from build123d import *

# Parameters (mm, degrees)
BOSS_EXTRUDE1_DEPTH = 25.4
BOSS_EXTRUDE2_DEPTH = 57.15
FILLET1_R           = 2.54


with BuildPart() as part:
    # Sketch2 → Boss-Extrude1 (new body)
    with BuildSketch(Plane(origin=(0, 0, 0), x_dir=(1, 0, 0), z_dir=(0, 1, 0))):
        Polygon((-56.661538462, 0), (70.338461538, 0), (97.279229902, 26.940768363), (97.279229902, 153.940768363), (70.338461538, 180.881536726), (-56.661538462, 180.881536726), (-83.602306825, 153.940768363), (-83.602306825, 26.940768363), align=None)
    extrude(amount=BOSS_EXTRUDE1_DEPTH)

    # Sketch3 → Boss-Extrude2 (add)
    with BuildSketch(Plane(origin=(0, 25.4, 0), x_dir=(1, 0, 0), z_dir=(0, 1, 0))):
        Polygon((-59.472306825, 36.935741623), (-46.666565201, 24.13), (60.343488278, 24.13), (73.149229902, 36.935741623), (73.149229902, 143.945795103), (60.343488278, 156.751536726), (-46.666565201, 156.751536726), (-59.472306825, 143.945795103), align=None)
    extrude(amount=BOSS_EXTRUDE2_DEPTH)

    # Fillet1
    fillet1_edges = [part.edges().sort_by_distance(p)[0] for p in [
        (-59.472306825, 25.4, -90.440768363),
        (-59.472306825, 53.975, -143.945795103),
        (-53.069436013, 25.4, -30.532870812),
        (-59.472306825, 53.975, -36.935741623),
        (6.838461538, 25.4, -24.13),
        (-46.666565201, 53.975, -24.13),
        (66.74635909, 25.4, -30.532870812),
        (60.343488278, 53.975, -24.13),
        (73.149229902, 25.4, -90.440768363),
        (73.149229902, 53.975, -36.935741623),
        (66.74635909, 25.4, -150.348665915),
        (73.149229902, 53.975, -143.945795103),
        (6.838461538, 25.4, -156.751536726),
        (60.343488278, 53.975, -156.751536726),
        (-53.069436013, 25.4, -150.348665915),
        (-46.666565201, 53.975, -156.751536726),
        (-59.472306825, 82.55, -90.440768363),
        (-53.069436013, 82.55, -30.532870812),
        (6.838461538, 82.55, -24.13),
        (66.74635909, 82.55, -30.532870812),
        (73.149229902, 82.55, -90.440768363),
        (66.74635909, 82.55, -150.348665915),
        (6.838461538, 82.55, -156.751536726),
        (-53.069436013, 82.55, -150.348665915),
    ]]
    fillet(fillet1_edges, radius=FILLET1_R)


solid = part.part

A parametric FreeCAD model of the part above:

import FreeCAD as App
import Part
import Sketcher

V = App.Vector
Q = App.Units.Quantity


def edges_at(feature, points):
    """Names of the edges that pass closest to the given points."""
    edges = feature.Shape.Edges
    near = lambda p: min(range(len(edges)), key=lambda i: edges[i].distToShape(Part.Vertex(*p))[0])
    return sorted({f"Edge{near(p) + 1}" for p in points})


def add_polygon(sketch, points):
    """Adds a closed chain of lines whose ends are joined by coincident constraints."""
    first, n = sketch.GeometryCount, len(points)
    for a, b in zip(points, points[1:] + points[:1]):
        sketch.addGeometry(Part.LineSegment(App.Vector(*a, 0), App.Vector(*b, 0)), False)
    for i in range(n):
        sketch.addConstraint(Sketcher.Constraint("Coincident", first + i, 2, first + (i + 1) % n, 1))

doc = App.newDocument("Part")
body = doc.addObject("PartDesign::Body", "Body")

sketch1 = body.newObject("Sketcher::SketchObject", "Sketch")
sketch1.AttachmentSupport = (doc.getObject("XZ_Plane"), [""])
sketch1.MapMode = "FlatFace"
add_polygon(sketch1, [(-56.661538, 0), (70.338462, 0), (97.27923, -26.940768), (97.27923, -153.940768), (70.338462, -180.881537), (-56.661538, -180.881537), (-83.602307, -153.940768), (-83.602307, -26.940768)])
sketch1.addConstraint([
    Sketcher.Constraint("Horizontal", 0),
    Sketcher.Constraint("Vertical", 2),
    Sketcher.Constraint("Horizontal", 4),
    Sketcher.Constraint("Vertical", 6),
    Sketcher.Constraint("PointOnObject", 0, 2, -1),
    Sketcher.Constraint("Perpendicular", 1, 3),
    Sketcher.Constraint("Perpendicular", 3, 5),
    Sketcher.Constraint("Perpendicular", 5, 7),
    Sketcher.Constraint("Horizontal", 2, 2, 5, 2),
    Sketcher.Constraint("Horizontal", 1, 2, 6, 2),
    Sketcher.Constraint("Vertical", 0, 2, 3, 2),
    Sketcher.Constraint("Vertical", 4, 2, 7, 2),
    Sketcher.Constraint("Equal", 4, 2),
    Sketcher.Constraint("DistanceX", 0, 1, 0, 2, Q("5 in")),
    Sketcher.Constraint("Distance", 1, Q("1.5 in")),
    Sketcher.Constraint("DistanceX", -1, 1, 0, 2, Q("70.338462 mm")),
])
pad1 = body.newObject("PartDesign::Pad", "Pad")
pad1.Profile = sketch1
pad1.Length = Q("1 in")
pad1.Reversed = True

sketch2 = body.newObject("Sketcher::SketchObject", "Sketch001")
sketch2.AttachmentSupport = (doc.getObject("XZ_Plane"), [""])
sketch2.MapMode = "FlatFace"
sketch2.AttachmentOffset = App.Placement(V(0, 0, -1 * 25.4), App.Rotation())
add_polygon(sketch2, [(-59.472307, -36.935742), (-46.666565, -24.13), (60.343488, -24.13), (73.14923, -36.935742), (73.14923, -143.945795), (60.343488, -156.751537), (-46.666565, -156.751537), (-59.472307, -143.945795)])
sketch2.addConstraint([
    Sketcher.Constraint("Horizontal", 1),
    Sketcher.Constraint("Vertical", 3),
    Sketcher.Constraint("Horizontal", 5),
    Sketcher.Constraint("Vertical", 7),
    Sketcher.Constraint("Perpendicular", 0, 2),
    Sketcher.Constraint("Perpendicular", 2, 4),
    Sketcher.Constraint("Perpendicular", 4, 6),
    Sketcher.Constraint("Horizontal", 3, 2, 6, 2),
    Sketcher.Constraint("Horizontal", 2, 2, 7, 2),
    Sketcher.Constraint("Vertical", 1, 2, 4, 2),
    Sketcher.Constraint("Vertical", 0, 2, 5, 2),
    Sketcher.Constraint("Equal", 5, 3),
    Sketcher.Constraint("DistanceY", 0, 2, -1, 1, Q("0.95 in")),
    Sketcher.Constraint("DistanceX", 1, 1, 1, 2, Q("107.010053 mm")),
    Sketcher.Constraint("DistanceX", -1, 1, 1, 2, Q("60.343488 mm")),
    Sketcher.Constraint("DistanceX", -1, 1, 2, 2, Q("73.14923 mm")),
])
pad2 = body.newObject("PartDesign::Pad", "Pad001")
pad2.Profile = sketch2
pad2.Length = Q("2.25 in")
pad2.Reversed = True
doc.recompute()

fillet = body.newObject("PartDesign::Fillet", "Fillet")
fillet.Base = (pad2, edges_at(pad2, [
    (-59.472, 25.4, -90.441),
    (-59.472, 53.975, -143.946),
    (-53.069, 25.4, -30.533),
    (-59.472, 53.975, -36.936),
    (6.838, 25.4, -24.13),
    (-46.667, 53.975, -24.13),
    (66.746, 25.4, -30.533),
    (60.343, 53.975, -24.13),
    (73.149, 25.4, -90.441),
    (73.149, 53.975, -36.936),
    (66.746, 25.4, -150.349),
    (73.149, 53.975, -143.946),
    (6.838, 25.4, -156.752),
    (60.343, 53.975, -156.752),
    (-53.069, 25.4, -150.349),
    (-46.667, 53.975, -156.752),
    (-59.472, 82.55, -90.441),
    (-53.069, 82.55, -30.533),
    (6.838, 82.55, -24.13),
    (66.746, 82.55, -30.533),
    (73.149, 82.55, -90.441),
    (66.746, 82.55, -150.349),
    (6.838, 82.55, -156.752),
    (-53.069, 82.55, -150.349),
]))
fillet.Radius = Q("0.1 in")

doc.recompute()
